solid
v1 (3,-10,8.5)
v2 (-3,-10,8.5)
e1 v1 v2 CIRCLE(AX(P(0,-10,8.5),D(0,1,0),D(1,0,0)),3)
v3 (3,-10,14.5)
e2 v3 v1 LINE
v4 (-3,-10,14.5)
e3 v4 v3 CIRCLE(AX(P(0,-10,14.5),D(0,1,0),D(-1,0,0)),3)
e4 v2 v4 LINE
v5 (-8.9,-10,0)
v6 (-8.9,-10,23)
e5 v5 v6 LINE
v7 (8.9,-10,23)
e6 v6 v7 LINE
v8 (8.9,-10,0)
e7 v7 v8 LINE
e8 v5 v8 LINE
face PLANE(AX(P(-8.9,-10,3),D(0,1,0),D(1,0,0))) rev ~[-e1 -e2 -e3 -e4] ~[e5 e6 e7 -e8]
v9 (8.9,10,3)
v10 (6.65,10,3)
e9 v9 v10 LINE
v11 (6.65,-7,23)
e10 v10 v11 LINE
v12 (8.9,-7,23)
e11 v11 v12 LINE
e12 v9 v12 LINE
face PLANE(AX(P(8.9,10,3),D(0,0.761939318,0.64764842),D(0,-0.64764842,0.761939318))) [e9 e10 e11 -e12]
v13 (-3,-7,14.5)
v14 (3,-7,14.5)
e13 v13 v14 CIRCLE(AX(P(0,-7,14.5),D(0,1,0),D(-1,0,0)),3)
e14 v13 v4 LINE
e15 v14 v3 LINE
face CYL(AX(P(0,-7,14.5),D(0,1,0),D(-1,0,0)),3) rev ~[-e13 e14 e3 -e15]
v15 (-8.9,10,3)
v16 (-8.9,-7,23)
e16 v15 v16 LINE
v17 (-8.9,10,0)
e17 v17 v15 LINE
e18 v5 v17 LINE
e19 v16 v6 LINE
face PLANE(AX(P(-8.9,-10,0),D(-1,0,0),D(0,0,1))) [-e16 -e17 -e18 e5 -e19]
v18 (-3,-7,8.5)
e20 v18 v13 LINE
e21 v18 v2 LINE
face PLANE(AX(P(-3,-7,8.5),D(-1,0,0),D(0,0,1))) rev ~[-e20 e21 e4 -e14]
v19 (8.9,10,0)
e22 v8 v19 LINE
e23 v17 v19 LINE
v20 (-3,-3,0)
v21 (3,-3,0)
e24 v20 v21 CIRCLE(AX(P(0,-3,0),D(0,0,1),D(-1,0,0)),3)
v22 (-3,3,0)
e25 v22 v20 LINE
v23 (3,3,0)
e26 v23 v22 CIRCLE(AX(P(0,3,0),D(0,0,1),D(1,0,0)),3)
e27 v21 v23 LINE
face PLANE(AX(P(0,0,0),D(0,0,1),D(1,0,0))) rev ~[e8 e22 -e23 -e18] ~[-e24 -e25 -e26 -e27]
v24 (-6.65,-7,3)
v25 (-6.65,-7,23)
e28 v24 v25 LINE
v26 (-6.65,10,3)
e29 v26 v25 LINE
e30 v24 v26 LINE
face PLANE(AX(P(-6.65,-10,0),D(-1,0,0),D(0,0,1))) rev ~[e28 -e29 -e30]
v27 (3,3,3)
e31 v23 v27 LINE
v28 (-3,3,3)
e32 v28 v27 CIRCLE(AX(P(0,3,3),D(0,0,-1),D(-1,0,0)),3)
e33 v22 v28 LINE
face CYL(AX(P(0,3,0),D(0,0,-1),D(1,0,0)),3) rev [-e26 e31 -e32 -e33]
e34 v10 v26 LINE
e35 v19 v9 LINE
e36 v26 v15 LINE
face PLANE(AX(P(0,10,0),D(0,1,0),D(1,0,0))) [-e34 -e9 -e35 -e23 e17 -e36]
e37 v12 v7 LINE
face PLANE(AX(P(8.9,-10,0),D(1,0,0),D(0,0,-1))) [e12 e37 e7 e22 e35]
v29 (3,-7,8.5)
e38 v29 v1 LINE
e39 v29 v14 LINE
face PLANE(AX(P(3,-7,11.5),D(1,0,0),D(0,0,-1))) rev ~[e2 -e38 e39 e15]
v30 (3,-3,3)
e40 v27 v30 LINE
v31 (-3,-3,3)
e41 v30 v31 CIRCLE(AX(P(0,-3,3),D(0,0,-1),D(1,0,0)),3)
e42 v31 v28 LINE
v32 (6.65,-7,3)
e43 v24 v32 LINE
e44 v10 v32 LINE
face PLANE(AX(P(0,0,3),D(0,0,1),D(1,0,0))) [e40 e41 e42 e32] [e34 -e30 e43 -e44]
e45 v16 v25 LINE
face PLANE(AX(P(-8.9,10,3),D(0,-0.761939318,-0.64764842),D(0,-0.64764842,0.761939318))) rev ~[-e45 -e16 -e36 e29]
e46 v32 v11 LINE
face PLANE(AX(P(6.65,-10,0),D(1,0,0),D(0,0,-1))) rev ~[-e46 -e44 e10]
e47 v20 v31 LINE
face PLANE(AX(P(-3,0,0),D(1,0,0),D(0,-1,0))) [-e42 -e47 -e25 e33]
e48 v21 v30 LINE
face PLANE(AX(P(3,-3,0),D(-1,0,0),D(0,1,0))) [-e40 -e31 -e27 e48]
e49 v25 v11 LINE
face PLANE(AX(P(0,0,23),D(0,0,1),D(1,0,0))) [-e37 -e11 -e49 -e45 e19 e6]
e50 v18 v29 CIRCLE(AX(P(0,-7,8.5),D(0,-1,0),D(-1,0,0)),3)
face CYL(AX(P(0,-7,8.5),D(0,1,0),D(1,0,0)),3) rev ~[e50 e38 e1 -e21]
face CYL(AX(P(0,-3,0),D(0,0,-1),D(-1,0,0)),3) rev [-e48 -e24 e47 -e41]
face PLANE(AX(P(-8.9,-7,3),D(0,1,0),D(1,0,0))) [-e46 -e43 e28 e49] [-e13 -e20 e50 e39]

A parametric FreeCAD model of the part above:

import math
import FreeCAD as App
import Part
import Sketcher

V = App.Vector
Q = App.Units.Quantity

doc = App.newDocument("Part")
body = doc.addObject("PartDesign::Body", "Body")

sketch1 = doc.addObject("Sketcher::SketchObject", "Sketch")
body.addObject(sketch1)
sketch1.AttachmentSupport = (doc.XY_Plane, [""])
sketch1.MapMode = "FlatFace"
sketch1.addGeometry(Part.LineSegment(V(8.9, -10, 0), V(8.9, 10, 0)), False)
sketch1.addGeometry(Part.LineSegment(V(8.9, 10, 0), V(-8.9, 10, 0)), False)
sketch1.addGeometry(Part.LineSegment(V(-8.9, 10, 0), V(-8.9, -10, 0)), False)
sketch1.addGeometry(Part.LineSegment(V(-8.9, -10, 0), V(8.9, -10, 0)), False)
sketch1.addGeometry(Part.ArcOfCircle(Part.Circle(V(0, -3, 0), V(0, 0, 1), 3), math.radians(180), math.radians(360)), False)
sketch1.addGeometry(Part.LineSegment(V(-3, -3, 0), V(-3, 3, 0)), False)
sketch1.addGeometry(Part.ArcOfCircle(Part.Circle(V(0, 3, 0), V(0, 0, 1), 3), math.radians(0), math.radians(180)), False)
sketch1.addGeometry(Part.LineSegment(V(3, 3, 0), V(3, -3, 0)), False)
sketch1.addConstraint(Sketcher.Constraint("Coincident", 0, 2, 1, 1))
sketch1.addConstraint(Sketcher.Constraint("Coincident", 1, 2, 2, 1))
sketch1.addConstraint(Sketcher.Constraint("Coincident", 2, 2, 3, 1))
sketch1.addConstraint(Sketcher.Constraint("Coincident", 3, 2, 0, 1))
sketch1.addConstraint(Sketcher.Constraint("Tangent", 4, 1, 5, 1))
sketch1.addConstraint(Sketcher.Constraint("Tangent", 5, 2, 6, 2))
sketch1.addConstraint(Sketcher.Constraint("Tangent", 6, 1, 7, 1))
sketch1.addConstraint(Sketcher.Constraint("Tangent", 7, 2, 4, 2))
sketch1.addConstraint(Sketcher.Constraint("Vertical", 0))
sketch1.addConstraint(Sketcher.Constraint("Horizontal", 1))
sketch1.addConstraint(Sketcher.Constraint("Vertical", 2))
sketch1.addConstraint(Sketcher.Constraint("Horizontal", 3))
sketch1.addConstraint(Sketcher.Constraint("Vertical", 5))
sketch1.addConstraint(Sketcher.Constraint("Vertical", 7))
sketch1.addConstraint(Sketcher.Constraint("Symmetric", 4, 3, 6, 3, -1, 1))
sketch1.addConstraint(Sketcher.Constraint("Symmetric", 0, 2, 2, 2, -1, 1))
sketch1.addConstraint(Sketcher.Constraint("Radius", 4, Q("3 mm")))
sketch1.addConstraint(Sketcher.Constraint("DistanceY", 0, 1, 0, 2, Q("20 mm")))
sketch1.addConstraint(Sketcher.Constraint("DistanceY", 5, 1, 5, 2, Q("6 mm")))
sketch1.addConstraint(Sketcher.Constraint("DistanceX", 1, 2, 1, 1, Q("17.8 mm")))
pad1 = doc.addObject("PartDesign::Pad", "Pad")
body.addObject(pad1)
pad1.Profile = sketch1
pad1.Length = 3

sketch2 = doc.addObject("Sketcher::SketchObject", "Sketch001")
body.addObject(sketch2)
sketch2.AttachmentSupport = (doc.XY_Plane, [""])
sketch2.MapMode = "FlatFace"
sketch2.AttachmentOffset = App.Placement(V(0, 0, 3), App.Rotation())
sketch2.addGeometry(Part.LineSegment(V(8.9, -7, 0), V(-8.9, -7, 0)), False)
sketch2.addGeometry(Part.LineSegment(V(-8.9, -7, 0), V(-8.9, -10, 0)), False)
sketch2.addGeometry(Part.LineSegment(V(-8.9, -10, 0), V(8.9, -10, 0)), False)
sketch2.addGeometry(Part.LineSegment(V(8.9, -10, 0), V(8.9, -7, 0)), False)
sketch2.addConstraint(Sketcher.Constraint("Coincident", 0, 2, 1, 1))
sketch2.addConstraint(Sketcher.Constraint("Coincident", 1, 2, 2, 1))
sketch2.addConstraint(Sketcher.Constraint("Coincident", 2, 2, 3, 1))
sketch2.addConstraint(Sketcher.Constraint("Coincident", 3, 2, 0, 1))
sketch2.addConstraint(Sketcher.Constraint("Horizontal", 0))
sketch2.addConstraint(Sketcher.Constraint("Vertical", 1))
sketch2.addConstraint(Sketcher.Constraint("Horizontal", 2))
sketch2.addConstraint(Sketcher.Constraint("Vertical", 3))
sketch2.addConstraint(Sketcher.Constraint("DistanceY", 1, 2, 1, 1, Q("3 mm")))
sketch2.addConstraint(Sketcher.Constraint("DistanceX", 0, 2, 0, 1, Q("17.8 mm")))
sketch2.addConstraint(Sketcher.Constraint("DistanceY", 0, 2, -1, 1, Q("7 mm")))
sketch2.addConstraint(Sketcher.Constraint("DistanceX", 0, 2, -1, 1, Q("8.9 mm")))
pad2 = doc.addObject("PartDesign::Pad", "Pad001")
body.addObject(pad2)
pad2.Profile = sketch2
pad2.Length = 20

sketch3 = doc.addObject("Sketcher::SketchObject", "Sketch002")
body.addObject(sketch3)
sketch3.AttachmentSupport = (doc.YZ_Plane, [""])
sketch3.MapMode = "FlatFace"
sketch3.AttachmentOffset = App.Placement(V(0, 0, 8.9), App.Rotation())
sketch3.addGeometry(Part.LineSegment(V(-7, 3, 0), V(10, 3, 0)), False)
sketch3.addGeometry(Part.LineSegment(V(10, 3, 0), V(-7, 23, 0)), False)
sketch3.addGeometry(Part.LineSegment(V(-7, 23, 0), V(-7, 3, 0)), False)
sketch3.addConstraint(Sketcher.Constraint("Coincident", 0, 2, 1, 1))
sketch3.addConstraint(Sketcher.Constraint("Coincident", 1, 2, 2, 1))
sketch3.addConstraint(Sketcher.Constraint("Coincident", 2, 2, 0, 1))
sketch3.addConstraint(Sketcher.Constraint("Horizontal", 0))
sketch3.addConstraint(Sketcher.Constraint("Vertical", 2))
sketch3.addConstraint(Sketcher.Constraint("DistanceX", 0, 1, 0, 2, Q("17 mm")))
sketch3.addConstraint(Sketcher.Constraint("DistanceY", 2, 2, 2, 1, Q("20 mm")))
sketch3.addConstraint(Sketcher.Constraint("DistanceX", -1, 1, 0, 2, Q("10 mm")))
sketch3.addConstraint(Sketcher.Constraint("DistanceY", -1, 1, 0, 2, Q("3 mm")))
pad3 = doc.addObject("PartDesign::Pad", "Pad002")
body.addObject(pad3)
pad3.Profile = sketch3
pad3.Length = 2.25
pad3.Reversed = True

sketch4 = doc.addObject("Sketcher::SketchObject", "Sketch003")
body.addObject(sketch4)
sketch4.AttachmentSupport = (doc.YZ_Plane, [""])
sketch4.MapMode = "FlatFace"
sketch4.AttachmentOffset = App.Placement(V(0, 0, -8.9), App.Rotation())
sketch4.addGeometry(Part.LineSegment(V(-7, 23, 0), V(10, 3, 0)), False)
sketch4.addGeometry(Part.LineSegment(V(10, 3, 0), V(-7, 3, 0)), False)
sketch4.addGeometry(Part.LineSegment(V(-7, 3, 0), V(-7, 23, 0)), False)
sketch4.addConstraint(Sketcher.Constraint("Coincident", 0, 2, 1, 1))
sketch4.addConstraint(Sketcher.Constraint("Coincident", 1, 2, 2, 1))
sketch4.addConstraint(Sketcher.Constraint("Coincident", 2, 2, 0, 1))
sketch4.addConstraint(Sketcher.Constraint("Horizontal", 1))
sketch4.addConstraint(Sketcher.Constraint("Vertical", 2))
sketch4.addConstraint(Sketcher.Constraint("DistanceX", 1, 2, 1, 1, Q("17 mm")))
sketch4.addConstraint(Sketcher.Constraint("DistanceY", 2, 1, 2, 2, Q("20 mm")))
sketch4.addConstraint(Sketcher.Constraint("DistanceX", -1, 1, 0, 2, Q("10 mm")))
sketch4.addConstraint(Sketcher.Constraint("DistanceY", -1, 1, 0, 2, Q("3 mm")))
pad4 = doc.addObject("PartDesign::Pad", "Pad003")
body.addObject(pad4)
pad4.Profile = sketch4
pad4.Length = 2.25

sketch5 = doc.addObject("Sketcher::SketchObject", "Sketch004")
body.addObject(sketch5)
sketch5.AttachmentSupport = (doc.XZ_Plane, [""])
sketch5.MapMode = "FlatFace"
sketch5.AttachmentOffset = App.Placement(V(0, 0, 7), App.Rotation())
sketch5.addGeometry(Part.ArcOfCircle(Part.Circle(V(0, 8.5, 0), V(0, 0, 1), 3), math.radians(180), math.radians(360)), False)
sketch5.addGeometry(Part.LineSegment(V(-3, 8.5, 0), V(-3, 14.5, 0)), False)
sketch5.addGeometry(Part.ArcOfCircle(Part.Circle(V(0, 14.5, 0), V(0, 0, 1), 3), math.radians(0), math.radians(180)), False)
sketch5.addGeometry(Part.LineSegment(V(3, 14.5, 0), V(3, 8.5, 0)), False)
sketch5.addConstraint(Sketcher.Constraint("Tangent", 0, 1, 1, 1))
sketch5.addConstraint(Sketcher.Constraint("Tangent", 1, 2, 2, 2))
sketch5.addConstraint(Sketcher.Constraint("Tangent", 2, 1, 3, 1))
sketch5.addConstraint(Sketcher.Constraint("Tangent", 3, 2, 0, 2))
sketch5.addConstraint(Sketcher.Constraint("Vertical", 1))
sketch5.addConstraint(Sketcher.Constraint("Vertical", 3))
sketch5.addConstraint(Sketcher.Constraint("PointOnObject", 0, 3, -2))
sketch5.addConstraint(Sketcher.Constraint("Radius", 0, Q("3 mm")))
sketch5.addConstraint(Sketcher.Constraint("DistanceY", 1, 1, 1, 2, Q("6 mm")))
sketch5.addConstraint(Sketcher.Constraint("DistanceY", -1, 1, 0, 3, Q("8.5 mm")))
pocket1 = doc.addObject("PartDesign::Pocket", "Pocket")
body.addObject(pocket1)
pocket1.Profile = sketch5
pocket1.Type = "ThroughAll"
pocket1.Reversed = True

doc.recompute()
